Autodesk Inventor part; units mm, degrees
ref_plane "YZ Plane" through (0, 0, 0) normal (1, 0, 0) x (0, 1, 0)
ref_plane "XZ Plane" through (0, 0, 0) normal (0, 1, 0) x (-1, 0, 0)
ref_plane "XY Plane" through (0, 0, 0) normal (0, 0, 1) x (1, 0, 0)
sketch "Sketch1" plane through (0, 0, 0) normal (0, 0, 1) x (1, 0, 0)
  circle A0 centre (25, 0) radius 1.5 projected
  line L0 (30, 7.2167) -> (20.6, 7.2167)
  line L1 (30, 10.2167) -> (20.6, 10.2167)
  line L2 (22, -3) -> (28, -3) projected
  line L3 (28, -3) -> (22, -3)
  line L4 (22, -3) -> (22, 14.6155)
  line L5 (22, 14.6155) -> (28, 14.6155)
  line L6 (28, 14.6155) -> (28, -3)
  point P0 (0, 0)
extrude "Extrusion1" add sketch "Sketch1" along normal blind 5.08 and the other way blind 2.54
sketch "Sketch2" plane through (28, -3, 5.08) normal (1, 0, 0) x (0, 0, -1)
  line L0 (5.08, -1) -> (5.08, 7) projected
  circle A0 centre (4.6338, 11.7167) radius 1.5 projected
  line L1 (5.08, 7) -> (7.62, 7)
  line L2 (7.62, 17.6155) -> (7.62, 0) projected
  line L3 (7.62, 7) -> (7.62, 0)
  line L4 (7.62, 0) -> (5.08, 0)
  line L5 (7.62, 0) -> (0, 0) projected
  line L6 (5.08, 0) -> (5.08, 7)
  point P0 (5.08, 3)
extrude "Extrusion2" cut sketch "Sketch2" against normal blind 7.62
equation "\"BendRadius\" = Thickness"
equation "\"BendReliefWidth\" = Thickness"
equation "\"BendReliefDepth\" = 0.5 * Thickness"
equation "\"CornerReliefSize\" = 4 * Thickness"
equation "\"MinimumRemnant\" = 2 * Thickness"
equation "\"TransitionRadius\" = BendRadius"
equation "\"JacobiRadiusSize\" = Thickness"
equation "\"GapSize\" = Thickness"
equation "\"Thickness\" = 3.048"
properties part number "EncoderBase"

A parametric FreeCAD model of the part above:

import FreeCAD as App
import Part
import Sketcher

V = App.Vector
Q = App.Units.Quantity


def add_polygon(sketch, points):
    """Adds a closed chain of lines whose ends are joined by coincident constraints."""
    first, n = sketch.GeometryCount, len(points)
    for a, b in zip(points, points[1:] + points[:1]):
        sketch.addGeometry(Part.LineSegment(App.Vector(*a, 0), App.Vector(*b, 0)), False)
    for i in range(n):
        sketch.addConstraint(Sketcher.Constraint("Coincident", first + i, 2, first + (i + 1) % n, 1))

doc = App.newDocument("Part")
body = doc.addObject("PartDesign::Body", "Body")

# Sketch on XY plane
sketch1 = body.newObject("Sketcher::SketchObject", "Sketch")
sketch1.AttachmentSupport = (doc.getObject("XY_Plane"), [""])
sketch1.MapMode = "FlatFace"
add_polygon(sketch1, [(28, -3), (28, 14.6155), (22, 14.6155), (22, -3)])  # lines 0-3
sketch1.addGeometry(Part.Circle(V(25, 0, 0), V(0, 0, 1), 1.5), False)  # 4
sketch1.addConstraint([
    Sketcher.Constraint("Vertical", 0),
    Sketcher.Constraint("Horizontal", 1),
    Sketcher.Constraint("Vertical", 2),
    Sketcher.Constraint("Horizontal", 3),
    Sketcher.Constraint("PointOnObject", 4, 3, -1),
    Sketcher.Constraint("Diameter", 4, Q("0.1181 in")),
    Sketcher.Constraint("DistanceX", 1, 2, 1, 1, Q("6 mm")),
    Sketcher.Constraint("DistanceY", 0, 1, 0, 2, Q("17.6155 mm")),
    Sketcher.Constraint("DistanceY", 2, 2, -1, 1, Q("0.1181 in")),
    Sketcher.Constraint("DistanceX", 4, 3, 0, 2, Q("0.1181 in")),
    Sketcher.Constraint("DistanceX", -1, 1, 4, 3, Q("25 mm")),
])
pad1 = body.newObject("PartDesign::Pad", "Pad")
pad1.Profile = sketch1
pad1.Type = "TwoLengths"
pad1.Length = Q("0.2 in")
pad1.Length2 = Q("0.1 in")

# Sketch on YZ plane
sketch2 = body.newObject("Sketcher::SketchObject", "Sketch001")
sketch2.AttachmentSupport = (doc.getObject("YZ_Plane"), [""])
sketch2.MapMode = "FlatFace"
sketch2.AttachmentOffset = App.Placement(V(0, 0, 28), App.Rotation())
add_polygon(sketch2, [(4, 0), (-3, 0), (-3, -2.54), (4, -2.54)])  # lines 0-3
sketch2.addGeometry(Part.Circle(V(8.7167, 0.4462, 0), V(0, 0, 1), 1.5), False)  # 4
sketch2.addConstraint([
    Sketcher.Constraint("Horizontal", 0),
    Sketcher.Constraint("Vertical", 1),
    Sketcher.Constraint("Horizontal", 2),
    Sketcher.Constraint("Vertical", 3),
    Sketcher.Constraint("PointOnObject", 0, 2, -1),
    Sketcher.Constraint("DistanceY", 1, 2, 1, 1, Q("0.1 in")),
    Sketcher.Constraint("Diameter", 4, Q("0.1181 in")),
    Sketcher.Constraint("DistanceX", 0, 2, 0, 1, Q("0.2756 in")),
    Sketcher.Constraint("DistanceX", 0, 2, -1, 1, Q("0.1181 in")),
    Sketcher.Constraint("DistanceX", 2, 2, 4, 3, Q("0.1857 in")),
    Sketcher.Constraint("DistanceY", -1, 1, 4, 3, Q("0.4462 mm")),
])
pocket1 = body.newObject("PartDesign::Pocket", "Pocket")
pocket1.Profile = sketch2
pocket1.Length = Q("0.3 in")

doc.recompute()
